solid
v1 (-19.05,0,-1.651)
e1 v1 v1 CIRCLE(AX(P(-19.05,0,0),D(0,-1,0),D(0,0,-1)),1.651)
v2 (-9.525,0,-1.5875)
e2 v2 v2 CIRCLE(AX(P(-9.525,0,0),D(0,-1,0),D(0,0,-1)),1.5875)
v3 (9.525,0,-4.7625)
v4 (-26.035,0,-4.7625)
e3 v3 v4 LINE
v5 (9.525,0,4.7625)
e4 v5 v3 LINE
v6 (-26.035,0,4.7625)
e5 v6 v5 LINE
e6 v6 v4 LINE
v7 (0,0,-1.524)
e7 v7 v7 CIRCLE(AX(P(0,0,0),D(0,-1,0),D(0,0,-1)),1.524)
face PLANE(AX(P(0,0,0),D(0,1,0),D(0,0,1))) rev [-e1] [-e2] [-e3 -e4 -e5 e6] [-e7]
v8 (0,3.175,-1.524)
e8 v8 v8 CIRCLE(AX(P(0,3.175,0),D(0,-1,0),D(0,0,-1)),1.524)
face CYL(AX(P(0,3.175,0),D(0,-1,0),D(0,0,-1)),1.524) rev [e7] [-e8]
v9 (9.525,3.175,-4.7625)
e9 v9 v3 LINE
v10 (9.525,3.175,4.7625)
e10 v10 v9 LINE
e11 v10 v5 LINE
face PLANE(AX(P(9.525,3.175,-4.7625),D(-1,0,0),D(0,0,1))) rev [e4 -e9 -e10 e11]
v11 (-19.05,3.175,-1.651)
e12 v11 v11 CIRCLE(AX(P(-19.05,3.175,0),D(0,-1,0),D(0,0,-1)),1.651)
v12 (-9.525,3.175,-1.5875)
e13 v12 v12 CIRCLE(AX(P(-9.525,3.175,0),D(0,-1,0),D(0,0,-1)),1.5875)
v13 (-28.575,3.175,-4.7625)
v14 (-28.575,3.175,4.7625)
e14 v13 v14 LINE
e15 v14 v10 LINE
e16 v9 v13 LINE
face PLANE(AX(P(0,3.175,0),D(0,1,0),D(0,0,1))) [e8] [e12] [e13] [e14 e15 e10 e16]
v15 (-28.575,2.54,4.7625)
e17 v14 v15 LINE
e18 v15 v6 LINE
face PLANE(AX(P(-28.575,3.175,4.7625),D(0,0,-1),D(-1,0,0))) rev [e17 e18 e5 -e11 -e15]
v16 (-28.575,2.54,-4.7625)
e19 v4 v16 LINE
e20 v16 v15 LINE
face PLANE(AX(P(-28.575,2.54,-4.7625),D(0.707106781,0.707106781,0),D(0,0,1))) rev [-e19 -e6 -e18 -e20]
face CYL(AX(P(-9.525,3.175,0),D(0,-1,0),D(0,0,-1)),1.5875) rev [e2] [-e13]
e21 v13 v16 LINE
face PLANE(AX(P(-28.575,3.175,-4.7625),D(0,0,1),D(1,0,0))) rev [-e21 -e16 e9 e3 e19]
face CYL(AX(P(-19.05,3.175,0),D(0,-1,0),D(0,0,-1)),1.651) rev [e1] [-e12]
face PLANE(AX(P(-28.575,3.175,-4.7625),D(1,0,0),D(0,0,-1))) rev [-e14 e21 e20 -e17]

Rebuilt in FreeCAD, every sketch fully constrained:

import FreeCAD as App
import Part
import Sketcher
from FreeCAD import Vector
Q = App.Units.Quantity


def edges_at(feature, points):
    """Names of the edges that pass closest to the given points."""
    edges = feature.Shape.Edges
    near = lambda p: min(range(len(edges)), key=lambda i: edges[i].distToShape(Part.Vertex(*p))[0])
    return sorted({f"Edge{near(p) + 1}" for p in points})


def add_polygon(sketch, points):
    """Adds a closed chain of lines whose ends are joined by coincident constraints."""
    first, n = sketch.GeometryCount, len(points)
    for a, b in zip(points, points[1:] + points[:1]):
        sketch.addGeometry(Part.LineSegment(App.Vector(*a, 0), App.Vector(*b, 0)), False)
    for i in range(n):
        sketch.addConstraint(Sketcher.Constraint("Coincident", first + i, 2, first + (i + 1) % n, 1))

doc = App.newDocument("Part")
body = doc.addObject("PartDesign::Body", "Body")

# Sketch on XZ plane
sketch1 = body.newObject("Sketcher::SketchObject", "Sketch")
sketch1.AttachmentSupport = (doc.getObject("XZ_Plane"), [""])
sketch1.MapMode = "FlatFace"
add_polygon(sketch1, [(-29, -5), (-29, 5), (10, 5), (10, -5)])  # lines 0-3
sketch1.addConstraint([
    Sketcher.Constraint("Vertical", 0),
    Sketcher.Constraint("Horizontal", 1),
    Sketcher.Constraint("Vertical", 2),
    Sketcher.Constraint("Horizontal", 3),
    Sketcher.Constraint("DistanceX", 1, 1, 1, 2, Q("1.5 in")),
    Sketcher.Constraint("DistanceY", 0, 1, 0, 2, Q("0.375 in")),
    Sketcher.Constraint("DistanceX", 0, 2, -1, 1, Q("1.125 in")),
    Sketcher.Constraint("DistanceY", -1, 1, 0, 2, Q("0.1875 in")),
])
pad1 = body.newObject("PartDesign::Pad", "Pad")
pad1.Profile = sketch1
pad1.Length = Q("0.125 in")
pad1.Reversed = True

# Sketch on XZ plane
sketch2 = body.newObject("Sketcher::SketchObject", "Sketch001")
sketch2.AttachmentSupport = (doc.getObject("XZ_Plane"), [""])
sketch2.MapMode = "FlatFace"
sketch2.addGeometry([
    Part.Circle(Vector(-19.1, 0, 0), Vector(0, 0, 1), 1.7),
    Part.Circle(Vector(-9.5, 0, 0), Vector(0, 0, 1), 1.6),
    Part.Circle(Vector(0, 0, 0), Vector(0, 0, 1), 1.5),
], False)
sketch2.addConstraint([
    Sketcher.Constraint("Coincident", 2, 3, -1, 1),
    Sketcher.Constraint("PointOnObject", 0, 3, -1),
    Sketcher.Constraint("PointOnObject", 1, 3, -1),
    Sketcher.Constraint("Diameter", 0, Q("0.13 in")),
    Sketcher.Constraint("Diameter", 2, Q("0.12 in")),
    Sketcher.Constraint("Diameter", 1, Q("0.125 in")),
    Sketcher.Constraint("DistanceX", 0, 3, -1, 1, Q("0.75 in")),
    Sketcher.Constraint("DistanceX", 1, 3, -1, 1, Q("0.375 in")),
])
pocket1 = body.newObject("PartDesign::Pocket", "Pocket")
pocket1.Profile = sketch2
pocket1.Type = "ThroughAll"
doc.recompute()

chamfer = body.newObject("PartDesign::Chamfer", "Chamfer")
chamfer.Base = (pocket1, edges_at(pocket1, [(-28.575, 0, 0)]))
chamfer.Size = Q("0.1 in")

doc.recompute()
